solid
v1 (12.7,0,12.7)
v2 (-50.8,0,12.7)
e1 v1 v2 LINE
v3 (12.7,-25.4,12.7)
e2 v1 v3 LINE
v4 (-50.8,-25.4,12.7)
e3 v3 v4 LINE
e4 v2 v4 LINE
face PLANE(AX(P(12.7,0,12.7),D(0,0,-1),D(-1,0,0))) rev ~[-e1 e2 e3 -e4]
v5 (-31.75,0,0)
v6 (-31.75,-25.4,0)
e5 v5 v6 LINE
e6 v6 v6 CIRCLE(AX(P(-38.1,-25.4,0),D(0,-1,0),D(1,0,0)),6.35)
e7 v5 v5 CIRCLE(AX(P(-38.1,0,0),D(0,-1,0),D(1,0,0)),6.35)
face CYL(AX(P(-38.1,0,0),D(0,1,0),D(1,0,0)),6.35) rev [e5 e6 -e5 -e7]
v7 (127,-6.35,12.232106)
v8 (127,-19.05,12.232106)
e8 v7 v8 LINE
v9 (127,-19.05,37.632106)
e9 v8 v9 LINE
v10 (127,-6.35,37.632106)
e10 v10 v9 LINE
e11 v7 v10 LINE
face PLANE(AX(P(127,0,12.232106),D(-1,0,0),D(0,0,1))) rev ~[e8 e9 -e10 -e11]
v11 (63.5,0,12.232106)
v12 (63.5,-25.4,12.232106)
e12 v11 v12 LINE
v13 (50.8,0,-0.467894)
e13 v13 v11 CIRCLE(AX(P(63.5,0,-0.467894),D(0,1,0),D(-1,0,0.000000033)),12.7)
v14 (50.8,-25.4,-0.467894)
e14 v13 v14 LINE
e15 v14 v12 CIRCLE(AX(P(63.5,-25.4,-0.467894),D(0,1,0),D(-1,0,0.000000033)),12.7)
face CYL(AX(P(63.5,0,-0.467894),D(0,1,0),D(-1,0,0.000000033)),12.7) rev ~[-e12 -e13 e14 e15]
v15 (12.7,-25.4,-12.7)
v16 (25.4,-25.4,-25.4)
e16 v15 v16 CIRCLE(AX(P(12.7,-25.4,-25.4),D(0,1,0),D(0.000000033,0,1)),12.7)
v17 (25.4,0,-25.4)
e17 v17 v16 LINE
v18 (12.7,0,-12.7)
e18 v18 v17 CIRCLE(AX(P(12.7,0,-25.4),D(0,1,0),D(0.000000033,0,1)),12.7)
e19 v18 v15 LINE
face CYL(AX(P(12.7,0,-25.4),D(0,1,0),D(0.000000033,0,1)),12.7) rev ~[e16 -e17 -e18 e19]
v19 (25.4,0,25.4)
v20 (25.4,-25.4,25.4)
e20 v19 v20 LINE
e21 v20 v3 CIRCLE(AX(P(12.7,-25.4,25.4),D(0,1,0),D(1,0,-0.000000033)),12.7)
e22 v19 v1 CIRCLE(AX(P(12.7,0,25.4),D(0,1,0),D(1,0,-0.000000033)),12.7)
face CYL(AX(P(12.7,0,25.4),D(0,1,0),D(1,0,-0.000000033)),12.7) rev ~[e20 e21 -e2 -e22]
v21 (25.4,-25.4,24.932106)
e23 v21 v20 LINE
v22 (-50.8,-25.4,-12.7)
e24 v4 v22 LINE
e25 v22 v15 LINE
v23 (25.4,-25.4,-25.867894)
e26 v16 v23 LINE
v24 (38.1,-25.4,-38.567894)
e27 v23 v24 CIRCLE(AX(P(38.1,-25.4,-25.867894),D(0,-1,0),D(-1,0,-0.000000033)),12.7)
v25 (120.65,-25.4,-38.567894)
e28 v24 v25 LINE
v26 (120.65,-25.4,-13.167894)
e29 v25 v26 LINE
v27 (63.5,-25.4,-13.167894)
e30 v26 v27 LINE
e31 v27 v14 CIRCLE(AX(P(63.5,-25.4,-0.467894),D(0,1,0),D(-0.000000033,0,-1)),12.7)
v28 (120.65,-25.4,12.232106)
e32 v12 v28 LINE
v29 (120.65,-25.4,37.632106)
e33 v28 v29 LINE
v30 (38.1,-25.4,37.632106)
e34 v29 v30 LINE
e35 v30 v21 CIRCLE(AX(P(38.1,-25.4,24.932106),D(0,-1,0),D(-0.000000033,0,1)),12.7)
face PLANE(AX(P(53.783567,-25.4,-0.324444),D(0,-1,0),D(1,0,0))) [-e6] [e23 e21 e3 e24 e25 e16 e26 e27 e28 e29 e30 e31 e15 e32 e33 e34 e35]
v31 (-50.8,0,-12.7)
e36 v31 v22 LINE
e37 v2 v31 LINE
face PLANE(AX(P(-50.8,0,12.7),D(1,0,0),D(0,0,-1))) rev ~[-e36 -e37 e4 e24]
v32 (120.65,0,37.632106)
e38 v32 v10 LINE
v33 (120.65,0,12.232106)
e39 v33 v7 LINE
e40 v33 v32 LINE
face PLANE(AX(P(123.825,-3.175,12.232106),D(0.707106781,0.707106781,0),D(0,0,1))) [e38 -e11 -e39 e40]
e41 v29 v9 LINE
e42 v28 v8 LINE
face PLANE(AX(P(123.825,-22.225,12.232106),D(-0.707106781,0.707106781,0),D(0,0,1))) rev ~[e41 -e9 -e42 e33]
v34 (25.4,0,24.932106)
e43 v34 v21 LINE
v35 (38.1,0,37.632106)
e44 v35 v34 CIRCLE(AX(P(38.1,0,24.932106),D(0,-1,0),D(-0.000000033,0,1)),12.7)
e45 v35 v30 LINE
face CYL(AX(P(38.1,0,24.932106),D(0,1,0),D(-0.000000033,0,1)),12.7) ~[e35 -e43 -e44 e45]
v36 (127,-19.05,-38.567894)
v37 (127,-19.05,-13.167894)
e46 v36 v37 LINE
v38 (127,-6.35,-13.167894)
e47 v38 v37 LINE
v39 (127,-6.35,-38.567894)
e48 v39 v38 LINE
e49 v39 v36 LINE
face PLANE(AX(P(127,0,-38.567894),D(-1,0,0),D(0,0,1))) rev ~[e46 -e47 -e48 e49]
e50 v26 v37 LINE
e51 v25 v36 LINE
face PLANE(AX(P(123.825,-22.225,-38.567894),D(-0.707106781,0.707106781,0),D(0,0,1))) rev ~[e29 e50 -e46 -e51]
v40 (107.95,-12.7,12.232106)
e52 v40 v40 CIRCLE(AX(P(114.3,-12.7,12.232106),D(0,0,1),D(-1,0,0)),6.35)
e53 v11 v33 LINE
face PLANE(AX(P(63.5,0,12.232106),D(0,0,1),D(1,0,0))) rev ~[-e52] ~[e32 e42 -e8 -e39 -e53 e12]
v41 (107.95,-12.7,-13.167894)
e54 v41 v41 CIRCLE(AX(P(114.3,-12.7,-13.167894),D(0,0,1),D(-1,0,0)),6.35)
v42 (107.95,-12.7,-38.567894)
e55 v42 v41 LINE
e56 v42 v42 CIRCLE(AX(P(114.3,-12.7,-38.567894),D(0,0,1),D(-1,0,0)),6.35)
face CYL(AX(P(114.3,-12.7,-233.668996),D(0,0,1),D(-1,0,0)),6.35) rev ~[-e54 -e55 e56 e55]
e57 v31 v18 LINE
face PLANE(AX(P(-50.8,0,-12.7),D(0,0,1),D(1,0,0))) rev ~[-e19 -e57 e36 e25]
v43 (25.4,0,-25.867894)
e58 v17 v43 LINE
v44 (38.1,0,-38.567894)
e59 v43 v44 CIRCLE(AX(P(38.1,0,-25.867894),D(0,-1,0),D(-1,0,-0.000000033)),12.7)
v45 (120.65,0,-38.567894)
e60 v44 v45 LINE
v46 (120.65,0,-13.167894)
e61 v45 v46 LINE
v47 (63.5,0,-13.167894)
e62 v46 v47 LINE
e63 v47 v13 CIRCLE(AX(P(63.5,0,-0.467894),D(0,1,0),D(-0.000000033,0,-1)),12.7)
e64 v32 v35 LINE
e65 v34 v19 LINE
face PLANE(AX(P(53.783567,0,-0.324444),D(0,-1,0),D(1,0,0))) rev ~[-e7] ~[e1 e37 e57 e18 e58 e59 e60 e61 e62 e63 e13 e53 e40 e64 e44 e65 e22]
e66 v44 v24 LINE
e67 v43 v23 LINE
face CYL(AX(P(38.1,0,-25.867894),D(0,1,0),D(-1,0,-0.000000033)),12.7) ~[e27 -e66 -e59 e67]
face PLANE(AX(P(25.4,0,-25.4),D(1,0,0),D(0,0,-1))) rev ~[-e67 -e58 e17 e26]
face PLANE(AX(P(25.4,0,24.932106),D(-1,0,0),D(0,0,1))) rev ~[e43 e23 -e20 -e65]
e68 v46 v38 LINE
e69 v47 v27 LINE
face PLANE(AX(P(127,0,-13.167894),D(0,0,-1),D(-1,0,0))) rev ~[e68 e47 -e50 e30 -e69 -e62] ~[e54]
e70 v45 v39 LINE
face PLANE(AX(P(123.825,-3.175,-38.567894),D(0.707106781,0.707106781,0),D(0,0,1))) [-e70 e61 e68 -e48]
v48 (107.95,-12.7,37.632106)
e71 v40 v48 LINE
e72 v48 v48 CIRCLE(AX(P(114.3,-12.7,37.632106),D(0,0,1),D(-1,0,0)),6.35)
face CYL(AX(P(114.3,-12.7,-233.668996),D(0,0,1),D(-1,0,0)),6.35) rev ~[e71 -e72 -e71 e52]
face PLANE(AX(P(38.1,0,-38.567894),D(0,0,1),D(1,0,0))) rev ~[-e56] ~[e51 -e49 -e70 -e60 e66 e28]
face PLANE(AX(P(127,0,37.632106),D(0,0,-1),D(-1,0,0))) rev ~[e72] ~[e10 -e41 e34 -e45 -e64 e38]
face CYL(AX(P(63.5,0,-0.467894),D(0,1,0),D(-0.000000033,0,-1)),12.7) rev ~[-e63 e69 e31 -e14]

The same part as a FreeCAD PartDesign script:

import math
import FreeCAD as App
import Part
import Sketcher
Q = App.Units.Quantity


def edges_at(feature, points):
    """Names of the edges that pass closest to the given points."""
    edges = feature.Shape.Edges
    near = lambda p: min(range(len(edges)), key=lambda i: edges[i].distToShape(Part.Vertex(*p))[0])
    return sorted({f"Edge{near(p) + 1}" for p in points})

doc = App.newDocument("Part")
body = doc.addObject("PartDesign::Body", "Body")

sketch1 = body.newObject("Sketcher::SketchObject", "Sketch")
sketch1.AttachmentSupport = (doc.getObject("XZ_Plane"), [""])
sketch1.MapMode = "FlatFace"
sketch1.addGeometry([
    Part.LineSegment(App.Vector(12.7, 12.7, 0), App.Vector(-50.8, 12.7, 0)),
    Part.LineSegment(App.Vector(-50.8, 12.7, 0), App.Vector(-50.8, -12.7, 0)),
    Part.LineSegment(App.Vector(-50.8, -12.7, 0), App.Vector(12.7, -12.7, 0)),
    Part.ArcOfCircle(Part.Circle(App.Vector(12.7, -25.4, 0), App.Vector(0, 0, 1), 12.7), math.radians(0), math.radians(90)),
    Part.LineSegment(App.Vector(25.4, -25.4, 0), App.Vector(25.4, -25.87, 0)),
    Part.ArcOfCircle(Part.Circle(App.Vector(38.1, -25.87, 0), App.Vector(0, 0, 1), 12.7), math.radians(-180), math.radians(-90)),
    Part.LineSegment(App.Vector(38.1, -38.57, 0), App.Vector(127, -38.57, 0)),
    Part.LineSegment(App.Vector(127, -38.57, 0), App.Vector(127, -13.17, 0)),
    Part.LineSegment(App.Vector(127, -13.17, 0), App.Vector(63.5, -13.17, 0)),
    Part.ArcOfCircle(Part.Circle(App.Vector(63.5, -0.47, 0), App.Vector(0, 0, 1), 12.7), math.radians(-180), math.radians(-90)),
    Part.ArcOfCircle(Part.Circle(App.Vector(63.5, -0.47, 0), App.Vector(0, 0, 1), 12.7), math.radians(90), math.radians(180)),
    Part.LineSegment(App.Vector(63.5, 12.23, 0), App.Vector(127, 12.23, 0)),
    Part.LineSegment(App.Vector(127, 12.23, 0), App.Vector(127, 37.63, 0)),
    Part.LineSegment(App.Vector(127, 37.63, 0), App.Vector(38.1, 37.63, 0)),
    Part.ArcOfCircle(Part.Circle(App.Vector(38.1, 24.93, 0), App.Vector(0, 0, 1), 12.7), math.radians(90), math.radians(180)),
    Part.LineSegment(App.Vector(25.4, 24.93, 0), App.Vector(25.4, 25.4, 0)),
    Part.ArcOfCircle(Part.Circle(App.Vector(12.7, 25.4, 0), App.Vector(0, 0, 1), 12.7), math.radians(-90), math.radians(0)),
    Part.Circle(App.Vector(-38.1, 0, 0), App.Vector(0, 0, 1), 6.35),
], False)
sketch1.addConstraint([
    Sketcher.Constraint("Coincident", 0, 2, 1, 1),
    Sketcher.Constraint("Coincident", 1, 2, 2, 1),
    Sketcher.Constraint("Tangent", 2, 2, 3, 2),
    Sketcher.Constraint("Tangent", 3, 1, 4, 1),
    Sketcher.Constraint("Tangent", 4, 2, 5, 1),
    Sketcher.Constraint("Tangent", 5, 2, 6, 1),
    Sketcher.Constraint("Coincident", 6, 2, 7, 1),
    Sketcher.Constraint("Coincident", 7, 2, 8, 1),
    Sketcher.Constraint("Tangent", 8, 2, 9, 2),
    Sketcher.Constraint("Tangent", 9, 1, 10, 2),
    Sketcher.Constraint("Tangent", 10, 1, 11, 1),
    Sketcher.Constraint("Coincident", 11, 2, 12, 1),
    Sketcher.Constraint("Coincident", 12, 2, 13, 1),
    Sketcher.Constraint("Tangent", 13, 2, 14, 1),
    Sketcher.Constraint("Tangent", 14, 2, 15, 1),
    Sketcher.Constraint("Tangent", 15, 2, 16, 2),
    Sketcher.Constraint("Tangent", 16, 1, 0, 1),
    Sketcher.Constraint("Horizontal", 0),
    Sketcher.Constraint("Vertical", 1),
    Sketcher.Constraint("Horizontal", 2),
    Sketcher.Constraint("Vertical", 4),
    Sketcher.Constraint("Horizontal", 6),
    Sketcher.Constraint("Vertical", 7),
    Sketcher.Constraint("Horizontal", 8),
    Sketcher.Constraint("Horizontal", 11),
    Sketcher.Constraint("Vertical", 12),
    Sketcher.Constraint("Horizontal", 13),
    Sketcher.Constraint("Vertical", 15),
    Sketcher.Constraint("Equal", 3, 5),
    Sketcher.Constraint("Equal", 5, 9),
    Sketcher.Constraint("Equal", 9, 10),
    Sketcher.Constraint("Equal", 10, 14),
    Sketcher.Constraint("Equal", 14, 16),
    Sketcher.Constraint("Symmetric", 3, 3, 16, 3, -1),
    Sketcher.Constraint("PointOnObject", 17, 3, -1),
    Sketcher.Constraint("Horizontal", 10, 3, 9, 1),
    Sketcher.Constraint("Vertical", 7, 2, 11, 2),
    Sketcher.Constraint("Equal", 2, 8),
    Sketcher.Constraint("Equal", 1, 7),
    Sketcher.Constraint("Equal", 7, 12),
    Sketcher.Constraint("Equal", 4, 15),
    Sketcher.Constraint("Diameter", 17, Q("0.5 in")),
    Sketcher.Constraint("Radius", 3, Q("0.5 in")),
    Sketcher.Constraint("DistanceX", 0, 2, 0, 1, Q("2.5 in")),
    Sketcher.Constraint("DistanceX", 6, 1, 6, 2, Q("3.5 in")),
    Sketcher.Constraint("DistanceX", 0, 2, -1, 1, Q("2 in")),
    Sketcher.Constraint("DistanceX", 17, 3, 3, 3, Q("2 in")),
    Sketcher.Constraint("DistanceY", 4, 2, 4, 1, 0.467894),
])
pad1 = body.newObject("PartDesign::Pad", "Pad")
pad1.Profile = sketch1
pad1.Length = Q("1 in")

sketch2 = body.newObject("Sketcher::SketchObject", "Sketch001")
sketch2.AttachmentSupport = (doc.getObject("XY_Plane"), [""])
sketch2.MapMode = "FlatFace"
sketch2.AttachmentOffset = App.Placement(App.Vector(0, 0, -38.567894), App.Rotation())
sketch2.addGeometry(Part.Circle(App.Vector(114, -13, 0), App.Vector(0, 0, 1), 6), False)
sketch2.addConstraint([
    Sketcher.Constraint("Diameter", 0, Q("0.5 in")),
    Sketcher.Constraint("DistanceX", -1, 1, 0, 3, Q("4.5 in")),
    Sketcher.Constraint("DistanceY", 0, 3, -1, 1, Q("0.5 in")),
])
doc.recompute()
hole = body.newObject("PartDesign::Hole", "Hole")
hole.Profile = sketch2
hole.ThreadType = "None"
hole.Diameter = Q("0.5 in")
hole.DepthType = "ThroughAll"
hole.Reversed = True
doc.recompute()

chamfer = body.newObject("PartDesign::Chamfer", "Chamfer")
chamfer.Base = (hole, edges_at(hole, [
    (127, -25.4, -25.868),
    (127, 0, -25.868),
    (127, -25.4, 24.932),
    (127, 0, 24.932),
]))
chamfer.Size = Q("0.25 in")

doc.recompute()
